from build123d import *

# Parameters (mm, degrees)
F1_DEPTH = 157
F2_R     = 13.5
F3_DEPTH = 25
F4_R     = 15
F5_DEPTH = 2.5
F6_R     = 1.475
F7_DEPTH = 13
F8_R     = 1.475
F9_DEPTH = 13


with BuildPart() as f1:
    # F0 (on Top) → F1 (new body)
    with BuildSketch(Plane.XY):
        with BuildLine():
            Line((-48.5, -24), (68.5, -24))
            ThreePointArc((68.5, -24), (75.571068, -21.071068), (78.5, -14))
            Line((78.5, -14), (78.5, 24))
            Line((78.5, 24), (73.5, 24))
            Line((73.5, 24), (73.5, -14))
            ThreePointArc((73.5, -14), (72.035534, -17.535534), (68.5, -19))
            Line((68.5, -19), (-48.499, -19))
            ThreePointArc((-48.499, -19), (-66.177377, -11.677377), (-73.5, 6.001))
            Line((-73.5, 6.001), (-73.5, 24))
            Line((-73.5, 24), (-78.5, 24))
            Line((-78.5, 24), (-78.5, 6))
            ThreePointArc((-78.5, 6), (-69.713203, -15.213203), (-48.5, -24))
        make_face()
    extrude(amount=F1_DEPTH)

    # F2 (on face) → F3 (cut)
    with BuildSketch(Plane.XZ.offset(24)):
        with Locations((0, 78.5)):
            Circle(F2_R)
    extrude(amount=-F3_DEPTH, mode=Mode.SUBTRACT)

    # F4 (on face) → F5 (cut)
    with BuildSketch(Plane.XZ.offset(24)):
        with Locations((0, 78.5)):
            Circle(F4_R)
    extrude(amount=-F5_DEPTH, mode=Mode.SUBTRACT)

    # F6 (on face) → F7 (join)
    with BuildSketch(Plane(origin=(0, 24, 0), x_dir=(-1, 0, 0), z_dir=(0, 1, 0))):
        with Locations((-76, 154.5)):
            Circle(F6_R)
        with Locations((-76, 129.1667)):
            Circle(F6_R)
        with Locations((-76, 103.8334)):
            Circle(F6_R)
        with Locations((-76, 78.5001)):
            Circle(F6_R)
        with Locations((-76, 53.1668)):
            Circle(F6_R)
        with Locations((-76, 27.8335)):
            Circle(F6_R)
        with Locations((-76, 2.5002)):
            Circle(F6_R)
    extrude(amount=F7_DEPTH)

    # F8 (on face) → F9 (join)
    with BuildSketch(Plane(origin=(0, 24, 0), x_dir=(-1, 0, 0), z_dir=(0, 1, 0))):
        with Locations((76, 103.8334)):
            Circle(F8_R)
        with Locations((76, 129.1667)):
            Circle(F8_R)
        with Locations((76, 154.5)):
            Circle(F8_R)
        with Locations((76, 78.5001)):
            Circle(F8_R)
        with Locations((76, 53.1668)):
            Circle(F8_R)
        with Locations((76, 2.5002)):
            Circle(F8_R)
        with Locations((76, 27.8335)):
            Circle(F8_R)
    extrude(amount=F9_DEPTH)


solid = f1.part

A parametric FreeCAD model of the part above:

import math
import FreeCAD as App
import Part
import Sketcher

doc = App.newDocument("Part")
body = doc.addObject("PartDesign::Body", "Body")

sketch1 = body.newObject("Sketcher::SketchObject", "Sketch")
sketch1.AttachmentSupport = (doc.getObject("XY_Plane"), [""])
sketch1.MapMode = "FlatFace"
sketch1.addGeometry(Part.LineSegment(App.Vector(-48.5, -24, 0), App.Vector(68.5, -24, 0)), False)
sketch1.addGeometry(Part.ArcOfCircle(Part.Circle(App.Vector(68.5, -14, 0), App.Vector(0, 0, 1), 10), math.radians(-90), math.radians(0)), False)
sketch1.addGeometry(Part.LineSegment(App.Vector(78.5, -14, 0), App.Vector(78.5, 24, 0)), False)
sketch1.addGeometry(Part.LineSegment(App.Vector(78.5, 24, 0), App.Vector(73.5, 24, 0)), False)
sketch1.addGeometry(Part.LineSegment(App.Vector(73.5, 24, 0), App.Vector(73.5, -14, 0)), False)
sketch1.addGeometry(Part.ArcOfCircle(Part.Circle(App.Vector(68.5, -14, 0), App.Vector(0, 0, 1), 5), math.radians(-90), math.radians(0)), False)
sketch1.addGeometry(Part.LineSegment(App.Vector(68.5, -19, 0), App.Vector(-48.5, -19, 0)), False)
sketch1.addGeometry(Part.ArcOfCircle(Part.Circle(App.Vector(-48.5, 6, 0), App.Vector(0, 0, 1), 25), math.radians(180), math.radians(270)), False)
sketch1.addGeometry(Part.LineSegment(App.Vector(-73.5, 6, 0), App.Vector(-73.5, 24, 0)), False)
sketch1.addGeometry(Part.LineSegment(App.Vector(-73.5, 24, 0), App.Vector(-78.5, 24, 0)), False)
sketch1.addGeometry(Part.LineSegment(App.Vector(-78.5, 24, 0), App.Vector(-78.5, 6, 0)), False)
sketch1.addGeometry(Part.ArcOfCircle(Part.Circle(App.Vector(-48.5, 6, 0), App.Vector(0, 0, 1), 30), math.radians(-180), math.radians(-90)), False)
sketch1.addConstraint(Sketcher.Constraint("Tangent", 0, 2, 1, 1))
sketch1.addConstraint(Sketcher.Constraint("Tangent", 1, 2, 2, 1))
sketch1.addConstraint(Sketcher.Constraint("Coincident", 2, 2, 3, 1))
sketch1.addConstraint(Sketcher.Constraint("Coincident", 3, 2, 4, 1))
sketch1.addConstraint(Sketcher.Constraint("Tangent", 4, 2, 5, 2))
sketch1.addConstraint(Sketcher.Constraint("Tangent", 5, 1, 6, 1))
sketch1.addConstraint(Sketcher.Constraint("Tangent", 6, 2, 7, 2))
sketch1.addConstraint(Sketcher.Constraint("Tangent", 7, 1, 8, 1))
sketch1.addConstraint(Sketcher.Constraint("Coincident", 8, 2, 9, 1))
sketch1.addConstraint(Sketcher.Constraint("Coincident", 9, 2, 10, 1))
sketch1.addConstraint(Sketcher.Constraint("Tangent", 10, 2, 11, 1))
sketch1.addConstraint(Sketcher.Constraint("Tangent", 11, 2, 0, 1))
sketch1.addConstraint(Sketcher.Constraint("Horizontal", 0))
sketch1.addConstraint(Sketcher.Constraint("Vertical", 2))
sketch1.addConstraint(Sketcher.Constraint("Horizontal", 3))
sketch1.addConstraint(Sketcher.Constraint("Vertical", 4))
sketch1.addConstraint(Sketcher.Constraint("Horizontal", 6))
sketch1.addConstraint(Sketcher.Constraint("Vertical", 8))
sketch1.addConstraint(Sketcher.Constraint("Horizontal", 9))
sketch1.addConstraint(Sketcher.Constraint("Vertical", 10))
sketch1.addConstraint(Sketcher.Constraint("Coincident", 5, 3, 1, 3))
sketch1.addConstraint(Sketcher.Constraint("Symmetric", 3, 2, 8, 2, -2))
sketch1.addConstraint(Sketcher.Constraint("Equal", 3, 9))
sketch1.addConstraint(Sketcher.Constraint("Radius", 1, 9.999999))
sketch1.addConstraint(Sketcher.Constraint("Radius", 5, 5.0))
sketch1.addConstraint(Sketcher.Constraint("Radius", 11, 30.000001))
sketch1.addConstraint(Sketcher.Constraint("DistanceX", 0, 1, 0, 2, 117.0))
sketch1.addConstraint(Sketcher.Constraint("DistanceY", 2, 1, 2, 2, 38.0))
sketch1.addConstraint(Sketcher.Constraint("DistanceY", 1, 3, -1, 1, 14.000001))
sketch1.addConstraint(Sketcher.Constraint("Radius", 7, 25.000999))
pad1 = body.newObject("PartDesign::Pad", "Pad")
pad1.Profile = sketch1
pad1.Length = 157

sketch2 = body.newObject("Sketcher::SketchObject", "Sketch001")
sketch2.AttachmentSupport = (doc.getObject("XZ_Plane"), [""])
sketch2.MapMode = "FlatFace"
sketch2.AttachmentOffset = App.Placement(App.Vector(0, 0, 24), App.Rotation())
sketch2.addGeometry(Part.Circle(App.Vector(0, 78, 0), App.Vector(0, 0, 1), 14), False)
sketch2.addConstraint(Sketcher.Constraint("PointOnObject", 0, 3, -2))
sketch2.addConstraint(Sketcher.Constraint("Diameter", 0, 27.0))
sketch2.addConstraint(Sketcher.Constraint("DistanceY", -1, 1, 0, 3, 78.5))
pocket1 = body.newObject("PartDesign::Pocket", "Pocket")
pocket1.Profile = sketch2
pocket1.Length = 25

sketch3 = body.newObject("Sketcher::SketchObject", "Sketch002")
sketch3.AttachmentSupport = (doc.getObject("XZ_Plane"), [""])
sketch3.MapMode = "FlatFace"
sketch3.AttachmentOffset = App.Placement(App.Vector(0, 0, 24), App.Rotation())
sketch3.addGeometry(Part.Circle(App.Vector(0, 78, 0), App.Vector(0, 0, 1), 15), False)
sketch3.addConstraint(Sketcher.Constraint("PointOnObject", 0, 3, -2))
sketch3.addConstraint(Sketcher.Constraint("Diameter", 0, 30.0))
sketch3.addConstraint(Sketcher.Constraint("DistanceY", -1, 1, 0, 3, 78.5))
pocket2 = body.newObject("PartDesign::Pocket", "Pocket001")
pocket2.Profile = sketch3
pocket2.Length = 2.5

sketch4 = body.newObject("Sketcher::SketchObject", "Sketch003")
sketch4.AttachmentSupport = (doc.getObject("XZ_Plane"), [""])
sketch4.MapMode = "FlatFace"
sketch4.AttachmentOffset = App.Placement(App.Vector(0, 0, -24), App.Rotation())
sketch4.addGeometry(Part.Circle(App.Vector(76, 154.5, 0), App.Vector(0, 0, 1), 1.5), False)
sketch4.addGeometry(Part.Circle(App.Vector(76, 129.2, 0), App.Vector(0, 0, 1), 1.5), False)
sketch4.addGeometry(Part.Circle(App.Vector(76, 103.8, 0), App.Vector(0, 0, 1), 1.5), False)
sketch4.addGeometry(Part.Circle(App.Vector(76, 78.5, 0), App.Vector(0, 0, 1), 1.5), False)
sketch4.addGeometry(Part.Circle(App.Vector(76, 53.2, 0), App.Vector(0, 0, 1), 1.5), False)
sketch4.addGeometry(Part.Circle(App.Vector(76, 27.8, 0), App.Vector(0, 0, 1), 1.5), False)
sketch4.addGeometry(Part.Circle(App.Vector(76, 2.5, 0), App.Vector(0, 0, 1), 1.5), False)
sketch4.addConstraint(Sketcher.Constraint("Equal", 0, 1))
sketch4.addConstraint(Sketcher.Constraint("Equal", 1, 2))
sketch4.addConstraint(Sketcher.Constraint("Equal", 2, 3))
sketch4.addConstraint(Sketcher.Constraint("Equal", 3, 4))
sketch4.addConstraint(Sketcher.Constraint("Equal", 4, 5))
sketch4.addConstraint(Sketcher.Constraint("Equal", 5, 6))
sketch4.addConstraint(Sketcher.Constraint("Vertical", 0, 3, 1, 3))
sketch4.addConstraint(Sketcher.Constraint("Vertical", 1, 3, 2, 3))
sketch4.addConstraint(Sketcher.Constraint("Vertical", 2, 3, 3, 3))
sketch4.addConstraint(Sketcher.Constraint("Vertical", 3, 3, 4, 3))
sketch4.addConstraint(Sketcher.Constraint("Vertical", 4, 3, 5, 3))
sketch4.addConstraint(Sketcher.Constraint("Vertical", 5, 3, 6, 3))
sketch4.addConstraint(Sketcher.Constraint("Diameter", 0, 2.95))
sketch4.addConstraint(Sketcher.Constraint("DistanceX", -1, 1, 0, 3, 76.0))
sketch4.addConstraint(Sketcher.Constraint("DistanceY", -1, 1, 0, 3, 154.5))
sketch4.addConstraint(Sketcher.Constraint("DistanceY", -1, 1, 1, 3, 129.1667))
sketch4.addConstraint(Sketcher.Constraint("DistanceY", -1, 1, 2, 3, 103.8334))
sketch4.addConstraint(Sketcher.Constraint("DistanceY", -1, 1, 3, 3, 78.5001))
sketch4.addConstraint(Sketcher.Constraint("DistanceY", -1, 1, 4, 3, 53.1668))
sketch4.addConstraint(Sketcher.Constraint("DistanceY", -1, 1, 5, 3, 27.8335))
sketch4.addConstraint(Sketcher.Constraint("DistanceY", -1, 1, 6, 3, 2.5002))
pad2 = body.newObject("PartDesign::Pad", "Pad001")
pad2.Profile = sketch4
pad2.Length = 13
pad2.Reversed = True

sketch5 = body.newObject("Sketcher::SketchObject", "Sketch004")
sketch5.AttachmentSupport = (doc.getObject("XZ_Plane"), [""])
sketch5.MapMode = "FlatFace"
sketch5.AttachmentOffset = App.Placement(App.Vector(0, 0, -24), App.Rotation())
sketch5.addGeometry(Part.Circle(App.Vector(-76, 103.8, 0), App.Vector(0, 0, 1), 1.5), False)
sketch5.addGeometry(Part.Circle(App.Vector(-76, 129.2, 0), App.Vector(0, 0, 1), 1.5), False)
sketch5.addGeometry(Part.Circle(App.Vector(-76, 154.5, 0), App.Vector(0, 0, 1), 1.5), False)
sketch5.addGeometry(Part.Circle(App.Vector(-76, 78.5, 0), App.Vector(0, 0, 1), 1.5), False)
sketch5.addGeometry(Part.Circle(App.Vector(-76, 53.2, 0), App.Vector(0, 0, 1), 1.5), False)
sketch5.addGeometry(Part.Circle(App.Vector(-76, 2.5, 0), App.Vector(0, 0, 1), 1.5), False)
sketch5.addGeometry(Part.Circle(App.Vector(-76, 27.8, 0), App.Vector(0, 0, 1), 1.5), False)
sketch5.addConstraint(Sketcher.Constraint("Equal", 0, 1))
sketch5.addConstraint(Sketcher.Constraint("Equal", 1, 2))
sketch5.addConstraint(Sketcher.Constraint("Equal", 2, 3))
sketch5.addConstraint(Sketcher.Constraint("Equal", 3, 4))
sketch5.addConstraint(Sketcher.Constraint("Equal", 4, 5))
sketch5.addConstraint(Sketcher.Constraint("Equal", 5, 6))
sketch5.addConstraint(Sketcher.Constraint("Vertical", 0, 3, 1, 3))
sketch5.addConstraint(Sketcher.Constraint("Vertical", 1, 3, 2, 3))
sketch5.addConstraint(Sketcher.Constraint("Vertical", 2, 3, 3, 3))
sketch5.addConstraint(Sketcher.Constraint("Vertical", 3, 3, 4, 3))
sketch5.addConstraint(Sketcher.Constraint("Vertical", 4, 3, 5, 3))
sketch5.addConstraint(Sketcher.Constraint("Vertical", 5, 3, 6, 3))
sketch5.addConstraint(Sketcher.Constraint("Diameter", 0, 2.95))
sketch5.addConstraint(Sketcher.Constraint("DistanceX", 0, 3, -1, 1, 76.0))
sketch5.addConstraint(Sketcher.Constraint("DistanceY", -1, 1, 2, 3, 154.5))
sketch5.addConstraint(Sketcher.Constraint("DistanceY", -1, 1, 0, 3, 103.8334))
sketch5.addConstraint(Sketcher.Constraint("DistanceY", -1, 1, 1, 3, 129.1667))
sketch5.addConstraint(Sketcher.Constraint("DistanceY", -1, 1, 3, 3, 78.5001))
sketch5.addConstraint(Sketcher.Constraint("DistanceY", -1, 1, 4, 3, 53.1668))
sketch5.addConstraint(Sketcher.Constraint("DistanceY", -1, 1, 5, 3, 2.5002))
sketch5.addConstraint(Sketcher.Constraint("DistanceY", -1, 1, 6, 3, 27.8335))
pad3 = body.newObject("PartDesign::Pad", "Pad002")
pad3.Profile = sketch5
pad3.Length = 13
pad3.Reversed = True

doc.recompute()
